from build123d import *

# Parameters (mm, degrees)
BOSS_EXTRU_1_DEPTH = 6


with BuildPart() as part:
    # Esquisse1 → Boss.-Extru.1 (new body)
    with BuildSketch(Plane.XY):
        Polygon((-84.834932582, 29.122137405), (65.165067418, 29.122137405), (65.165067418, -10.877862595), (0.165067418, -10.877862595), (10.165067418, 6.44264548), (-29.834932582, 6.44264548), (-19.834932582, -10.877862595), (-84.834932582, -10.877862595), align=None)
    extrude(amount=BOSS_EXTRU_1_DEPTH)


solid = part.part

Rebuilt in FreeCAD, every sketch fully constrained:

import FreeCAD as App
import Part
import Sketcher

V = App.Vector
Q = App.Units.Quantity


def add_polygon(sketch, points):
    """Adds a closed chain of lines whose ends are joined by coincident constraints."""
    first, n = sketch.GeometryCount, len(points)
    for a, b in zip(points, points[1:] + points[:1]):
        sketch.addGeometry(Part.LineSegment(App.Vector(*a, 0), App.Vector(*b, 0)), False)
    for i in range(n):
        sketch.addConstraint(Sketcher.Constraint("Coincident", first + i, 2, first + (i + 1) % n, 1))

doc = App.newDocument("Part")
params = doc.addObject("Spreadsheet::Sheet", "Params")
for row, (alias, value) in enumerate([
    ("sketch1_width", "150 mm"),
    ("sketch1_width2", "65 mm"),
    ("sketch1_width3", "40 mm"),
    ("pad1_length", "6 mm"),
], start=1):
    params.set(f"A{row}", alias)
    params.set(f"B{row}", "=" + value)
    params.setAlias(f"B{row}", alias)

body = doc.addObject("PartDesign::Body", "Body")

# Sketch on XY plane
sketch1 = doc.addObject("Sketcher::SketchObject", "Sketch")
body.addObject(sketch1)
sketch1.AttachmentSupport = (doc.XY_Plane, [""])
sketch1.MapMode = "FlatFace"
add_polygon(sketch1, [(65, 29), (-85, 29), (-85, -11), (-20, -11), (-30, 6), (10, 6), (0, -11), (65, -11)])  # lines 0-7
sketch1.addConstraint([
    Sketcher.Constraint("Horizontal", 0),
    Sketcher.Constraint("Vertical", 1),
    Sketcher.Constraint("Horizontal", 2),
    Sketcher.Constraint("Horizontal", 4),
    Sketcher.Constraint("Horizontal", 6),
    Sketcher.Constraint("Vertical", 7),
    Sketcher.Constraint("Horizontal", 2, 2, 5, 2),
    Sketcher.Constraint("Equal", 2, 6),
    Sketcher.Constraint("Equal", 4, 1),
    Sketcher.Constraint("Equal", 3, 5),
    Sketcher.Constraint("DistanceX", 0, 2, 0, 1, Q("150 mm")),
    Sketcher.Constraint("DistanceX", 2, 1, 2, 2, Q("65 mm")),
    Sketcher.Constraint("DistanceX", 4, 1, 4, 2, Q("40 mm")),
    Sketcher.Constraint("Angle", 3, Q("120 deg")),
    Sketcher.Constraint("DistanceX", 0, 2, -1, 1, Q("84.834933 mm")),
    Sketcher.Constraint("DistanceY", -1, 1, 0, 2, Q("29.122137 mm")),
])
sketch1.setExpression("Constraints[18]", "Params.sketch1_width")
sketch1.setExpression("Constraints[19]", "Params.sketch1_width2")
sketch1.setExpression("Constraints[20]", "Params.sketch1_width3")
pad1 = doc.addObject("PartDesign::Pad", "Pad")
body.addObject(pad1)
pad1.Profile = sketch1
pad1.setExpression("Length", "Params.pad1_length")

doc.recompute()
